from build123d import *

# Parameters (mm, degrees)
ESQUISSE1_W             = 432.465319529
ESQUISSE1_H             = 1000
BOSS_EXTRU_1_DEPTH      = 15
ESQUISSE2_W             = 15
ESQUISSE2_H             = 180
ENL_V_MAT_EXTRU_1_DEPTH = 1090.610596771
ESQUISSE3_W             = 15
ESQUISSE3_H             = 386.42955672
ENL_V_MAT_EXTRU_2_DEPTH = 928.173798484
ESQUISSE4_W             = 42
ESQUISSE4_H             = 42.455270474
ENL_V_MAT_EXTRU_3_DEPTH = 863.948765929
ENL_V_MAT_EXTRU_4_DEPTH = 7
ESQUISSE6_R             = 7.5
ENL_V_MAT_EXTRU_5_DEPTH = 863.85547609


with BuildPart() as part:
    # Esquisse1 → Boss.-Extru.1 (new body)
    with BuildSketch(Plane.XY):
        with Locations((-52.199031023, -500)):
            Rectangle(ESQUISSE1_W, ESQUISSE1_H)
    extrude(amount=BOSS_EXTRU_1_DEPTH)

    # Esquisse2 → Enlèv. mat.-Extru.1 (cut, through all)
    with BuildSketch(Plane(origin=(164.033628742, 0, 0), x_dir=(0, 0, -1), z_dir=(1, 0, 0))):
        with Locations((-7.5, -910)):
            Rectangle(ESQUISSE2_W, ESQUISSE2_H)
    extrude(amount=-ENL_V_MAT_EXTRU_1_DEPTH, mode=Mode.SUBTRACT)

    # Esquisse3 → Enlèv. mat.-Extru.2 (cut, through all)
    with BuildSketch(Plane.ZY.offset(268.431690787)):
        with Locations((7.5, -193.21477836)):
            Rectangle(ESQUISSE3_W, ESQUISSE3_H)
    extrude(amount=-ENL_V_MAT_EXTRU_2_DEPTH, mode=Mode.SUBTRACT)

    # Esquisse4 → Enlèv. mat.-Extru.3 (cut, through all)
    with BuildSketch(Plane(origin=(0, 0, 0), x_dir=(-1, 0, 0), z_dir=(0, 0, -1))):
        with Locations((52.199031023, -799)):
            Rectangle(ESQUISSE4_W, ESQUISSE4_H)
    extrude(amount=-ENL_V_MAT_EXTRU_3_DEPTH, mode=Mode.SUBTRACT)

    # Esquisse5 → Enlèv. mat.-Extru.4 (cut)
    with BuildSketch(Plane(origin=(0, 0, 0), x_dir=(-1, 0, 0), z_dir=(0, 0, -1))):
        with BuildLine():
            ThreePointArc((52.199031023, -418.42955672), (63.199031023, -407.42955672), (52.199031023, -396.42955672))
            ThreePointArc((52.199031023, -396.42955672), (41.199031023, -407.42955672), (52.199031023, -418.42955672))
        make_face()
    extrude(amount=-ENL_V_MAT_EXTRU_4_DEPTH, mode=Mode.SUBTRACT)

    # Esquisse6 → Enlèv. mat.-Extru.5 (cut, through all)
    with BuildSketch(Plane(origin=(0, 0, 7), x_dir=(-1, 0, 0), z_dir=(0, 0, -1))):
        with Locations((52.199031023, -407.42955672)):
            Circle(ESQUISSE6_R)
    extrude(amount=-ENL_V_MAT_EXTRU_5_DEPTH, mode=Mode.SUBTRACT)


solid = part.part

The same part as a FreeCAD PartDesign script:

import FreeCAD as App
import Part
import Sketcher
from FreeCAD import Vector
Q = App.Units.Quantity


def add_polygon(sketch, points):
    """Adds a closed chain of lines whose ends are joined by coincident constraints."""
    first, n = sketch.GeometryCount, len(points)
    for a, b in zip(points, points[1:] + points[:1]):
        sketch.addGeometry(Part.LineSegment(App.Vector(*a, 0), App.Vector(*b, 0)), False)
    for i in range(n):
        sketch.addConstraint(Sketcher.Constraint("Coincident", first + i, 2, first + (i + 1) % n, 1))

doc = App.newDocument("Part")
body = doc.addObject("PartDesign::Body", "Body")

sketch1 = body.newObject("Sketcher::SketchObject", "Sketch")
sketch1.AttachmentSupport = (doc.getObject("XY_Plane"), [""])
sketch1.MapMode = "FlatFace"
add_polygon(sketch1, [(-268, 0), (-268, -1000), (164, -1000), (164, 0)])
sketch1.addConstraint(Sketcher.Constraint("Vertical", 0))
sketch1.addConstraint(Sketcher.Constraint("Horizontal", 1))
sketch1.addConstraint(Sketcher.Constraint("Vertical", 2))
sketch1.addConstraint(Sketcher.Constraint("Horizontal", 3))
sketch1.addConstraint(Sketcher.Constraint("PointOnObject", 2, 2, -1))
sketch1.addConstraint(Sketcher.Constraint("DistanceY", 0, 2, 0, 1, Q("1000 mm")))
sketch1.addConstraint(Sketcher.Constraint("DistanceX", 1, 1, 1, 2, Q("432.46532 mm")))
sketch1.addConstraint(Sketcher.Constraint("DistanceX", 0, 2, -1, 1, Q("268.431691 mm")))
pad1 = body.newObject("PartDesign::Pad", "Pad")
pad1.Profile = sketch1
pad1.Length = 15

sketch2 = body.newObject("Sketcher::SketchObject", "Sketch001")
sketch2.AttachmentSupport = (doc.getObject("YZ_Plane"), [""])
sketch2.MapMode = "FlatFace"
sketch2.AttachmentOffset = App.Placement(Vector(0, 0, 164.033629), App.Rotation())
add_polygon(sketch2, [(-820, 15), (-1000, 15), (-1000, 0), (-820, 0)])
sketch2.addConstraint(Sketcher.Constraint("Horizontal", 0))
sketch2.addConstraint(Sketcher.Constraint("Vertical", 1))
sketch2.addConstraint(Sketcher.Constraint("Horizontal", 2))
sketch2.addConstraint(Sketcher.Constraint("Vertical", 3))
sketch2.addConstraint(Sketcher.Constraint("PointOnObject", 1, 2, -1))
sketch2.addConstraint(Sketcher.Constraint("DistanceX", 0, 2, 0, 1, Q("180 mm")))
sketch2.addConstraint(Sketcher.Constraint("DistanceY", 1, 2, 1, 1, Q("15 mm")))
sketch2.addConstraint(Sketcher.Constraint("DistanceX", 0, 2, -1, 1, Q("1000 mm")))
pocket1 = body.newObject("PartDesign::Pocket", "Pocket")
pocket1.Profile = sketch2
pocket1.Type = "ThroughAll"

sketch3 = body.newObject("Sketcher::SketchObject", "Sketch002")
sketch3.AttachmentSupport = (doc.getObject("YZ_Plane"), [""])
sketch3.MapMode = "FlatFace"
sketch3.AttachmentOffset = App.Placement(Vector(0, 0, -268.431691), App.Rotation())
add_polygon(sketch3, [(0, 0), (-386, 0), (-386, 15), (0, 15)])
sketch3.addConstraint(Sketcher.Constraint("Horizontal", 0))
sketch3.addConstraint(Sketcher.Constraint("Vertical", 1))
sketch3.addConstraint(Sketcher.Constraint("Horizontal", 2))
sketch3.addConstraint(Sketcher.Constraint("Vertical", 3))
sketch3.addConstraint(Sketcher.Constraint("Coincident", 3, 2, -1, 1))
sketch3.addConstraint(Sketcher.Constraint("DistanceY", 1, 1, 1, 2, Q("15 mm")))
sketch3.addConstraint(Sketcher.Constraint("DistanceX", 0, 2, 0, 1, Q("386.429557 mm")))
pocket2 = body.newObject("PartDesign::Pocket", "Pocket001")
pocket2.Profile = sketch3
pocket2.Type = "ThroughAll"
pocket2.Reversed = True

sketch4 = body.newObject("Sketcher::SketchObject", "Sketch003")
sketch4.AttachmentSupport = (doc.getObject("XY_Plane"), [""])
sketch4.MapMode = "FlatFace"
add_polygon(sketch4, [(-31, -778), (-31, -820), (-73, -820), (-73, -778)])
sketch4.addConstraint(Sketcher.Constraint("Vertical", 0))
sketch4.addConstraint(Sketcher.Constraint("Horizontal", 1))
sketch4.addConstraint(Sketcher.Constraint("Vertical", 2))
sketch4.addConstraint(Sketcher.Constraint("Horizontal", 3))
sketch4.addConstraint(Sketcher.Constraint("DistanceX", 1, 2, 1, 1, Q("42 mm")))
sketch4.addConstraint(Sketcher.Constraint("DistanceY", 0, 2, 0, 1, Q("42.45527 mm")))
sketch4.addConstraint(Sketcher.Constraint("DistanceX", 0, 2, -1, 1, Q("31.199031 mm")))
sketch4.addConstraint(Sketcher.Constraint("DistanceY", 0, 2, -1, 1, Q("820.227635 mm")))
pocket3 = body.newObject("PartDesign::Pocket", "Pocket002")
pocket3.Profile = sketch4
pocket3.Type = "ThroughAll"
pocket3.Reversed = True

sketch5 = body.newObject("Sketcher::SketchObject", "Sketch004")
sketch5.AttachmentSupport = (doc.getObject("XY_Plane"), [""])
sketch5.MapMode = "FlatFace"
sketch5.addGeometry(Part.Circle(Vector(-52, -407, 0), Vector(0, 0, 1), 11), False)
sketch5.addConstraint(Sketcher.Constraint("Diameter", 0, Q("22 mm")))
sketch5.addConstraint(Sketcher.Constraint("DistanceX", 0, 3, -1, 1, Q("52.199031 mm")))
sketch5.addConstraint(Sketcher.Constraint("DistanceY", 0, 3, -1, 1, Q("407.429557 mm")))
pocket4 = body.newObject("PartDesign::Pocket", "Pocket003")
pocket4.Profile = sketch5
pocket4.Length = 7
pocket4.Reversed = True

sketch6 = body.newObject("Sketcher::SketchObject", "Sketch005")
sketch6.AttachmentSupport = (doc.getObject("XY_Plane"), [""])
sketch6.MapMode = "FlatFace"
sketch6.AttachmentOffset = App.Placement(Vector(0, 0, 7), App.Rotation())
sketch6.addGeometry(Part.Circle(Vector(-52, -407, 0), Vector(0, 0, 1), 8), False)
sketch6.addConstraint(Sketcher.Constraint("Diameter", 0, Q("15 mm")))
sketch6.addConstraint(Sketcher.Constraint("DistanceX", 0, 3, -1, 1, Q("52.199031 mm")))
sketch6.addConstraint(Sketcher.Constraint("DistanceY", 0, 3, -1, 1, Q("407.429557 mm")))
pocket5 = body.newObject("PartDesign::Pocket", "Pocket004")
pocket5.Profile = sketch6
pocket5.Type = "ThroughAll"
pocket5.Reversed = True

doc.recompute()
